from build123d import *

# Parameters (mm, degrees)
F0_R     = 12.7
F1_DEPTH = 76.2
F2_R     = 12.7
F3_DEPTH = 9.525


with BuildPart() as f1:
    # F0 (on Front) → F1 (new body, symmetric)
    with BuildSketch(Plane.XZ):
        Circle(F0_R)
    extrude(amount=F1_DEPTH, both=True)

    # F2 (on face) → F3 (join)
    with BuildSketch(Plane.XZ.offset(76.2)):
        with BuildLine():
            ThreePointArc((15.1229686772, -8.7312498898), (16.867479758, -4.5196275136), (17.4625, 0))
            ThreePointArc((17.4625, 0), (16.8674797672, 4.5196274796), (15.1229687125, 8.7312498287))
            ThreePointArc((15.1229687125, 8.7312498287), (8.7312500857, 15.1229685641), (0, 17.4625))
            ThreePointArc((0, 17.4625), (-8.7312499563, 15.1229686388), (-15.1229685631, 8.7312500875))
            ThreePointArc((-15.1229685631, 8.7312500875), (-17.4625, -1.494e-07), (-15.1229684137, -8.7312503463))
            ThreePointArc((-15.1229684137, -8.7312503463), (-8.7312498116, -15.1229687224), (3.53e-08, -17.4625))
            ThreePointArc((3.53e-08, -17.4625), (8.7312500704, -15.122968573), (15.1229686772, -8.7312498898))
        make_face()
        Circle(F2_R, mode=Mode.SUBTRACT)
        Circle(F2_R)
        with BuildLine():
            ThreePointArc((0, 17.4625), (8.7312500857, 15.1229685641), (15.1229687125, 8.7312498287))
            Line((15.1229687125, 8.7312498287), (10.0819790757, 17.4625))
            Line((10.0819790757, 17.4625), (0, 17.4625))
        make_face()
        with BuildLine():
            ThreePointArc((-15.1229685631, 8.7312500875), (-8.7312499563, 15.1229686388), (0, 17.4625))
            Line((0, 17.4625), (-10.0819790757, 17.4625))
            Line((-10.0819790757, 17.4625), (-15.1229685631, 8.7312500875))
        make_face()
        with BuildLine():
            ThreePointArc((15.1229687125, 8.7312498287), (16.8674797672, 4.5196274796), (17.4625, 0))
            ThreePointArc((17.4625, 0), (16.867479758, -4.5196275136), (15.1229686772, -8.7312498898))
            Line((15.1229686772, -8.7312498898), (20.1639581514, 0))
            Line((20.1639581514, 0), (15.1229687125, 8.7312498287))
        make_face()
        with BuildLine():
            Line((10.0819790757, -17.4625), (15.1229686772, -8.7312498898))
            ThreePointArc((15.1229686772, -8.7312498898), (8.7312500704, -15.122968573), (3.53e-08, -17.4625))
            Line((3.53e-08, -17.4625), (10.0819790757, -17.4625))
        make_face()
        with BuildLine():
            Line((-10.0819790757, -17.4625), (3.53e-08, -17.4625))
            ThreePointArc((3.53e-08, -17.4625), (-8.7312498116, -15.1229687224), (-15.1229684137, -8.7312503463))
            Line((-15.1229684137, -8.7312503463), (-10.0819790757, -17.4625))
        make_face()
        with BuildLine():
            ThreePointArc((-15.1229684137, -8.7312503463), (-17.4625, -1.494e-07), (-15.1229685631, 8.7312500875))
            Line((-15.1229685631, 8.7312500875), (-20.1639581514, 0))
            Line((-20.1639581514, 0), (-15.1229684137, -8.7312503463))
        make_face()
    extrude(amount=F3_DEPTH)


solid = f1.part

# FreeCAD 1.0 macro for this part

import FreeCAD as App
import Part
import Sketcher

V = App.Vector
Q = App.Units.Quantity

doc = App.newDocument("Part")
params = doc.addObject("Spreadsheet::Sheet", "Params")
for row, (alias, value) in enumerate([
    ("sketch1_diameter", "1 in"),
    ("pad1_length", "6 in"),
    ("pad2_length", "0.375 in"),
], start=1):
    params.set(f"A{row}", alias)
    params.set(f"B{row}", "=" + value)
    params.setAlias(f"B{row}", alias)

body = doc.addObject("PartDesign::Body", "Body")

# Sketch on XZ plane
sketch1 = body.newObject("Sketcher::SketchObject", "Sketch")
sketch1.AttachmentSupport = (doc.getObject("XZ_Plane"), [""])
sketch1.MapMode = "FlatFace"
sketch1.addGeometry(Part.Circle(V(0, 0, 0), V(0, 0, 1), 12.7), False)
sketch1.addConstraint([
    Sketcher.Constraint("Coincident", 0, 3, -1, 1),
    Sketcher.Constraint("Diameter", 0, Q("1 in")),
])
sketch1.setExpression("Constraints[1]", "Params.sketch1_diameter")
pad1 = body.newObject("PartDesign::Pad", "Pad")
pad1.Profile = sketch1
pad1.setExpression("Length", "Params.pad1_length")
pad1.Midplane = True

# Sketch on XZ plane
sketch2 = body.newObject("Sketcher::SketchObject", "Sketch001")
sketch2.AttachmentSupport = (doc.getObject("XZ_Plane"), [""])
sketch2.MapMode = "FlatFace"
sketch2.AttachmentOffset = App.Placement(V(0, 0, 3 * 25.4), App.Rotation())
sketch2.addGeometry([
    Part.LineSegment(V(15.122969, 8.73125, 0), V(10.081979, 17.4625, 0)),  # 0
    Part.LineSegment(V(10.081979, 17.4625, 0), V(-10.081979, 17.4625, 0)),  # 1
    Part.LineSegment(V(-10.081979, 17.4625, 0), V(-15.122969, 8.73125, 0)),  # 2
    Part.LineSegment(V(-15.122969, 8.73125, 0), V(-20.163958, 0, 0)),  # 3
    Part.LineSegment(V(-20.163958, 0, 0), V(-15.122968, -8.73125, 0)),  # 4
    Part.LineSegment(V(-15.122968, -8.73125, 0), V(-10.081979, -17.4625, 0)),  # 5
    Part.LineSegment(V(-10.081979, -17.4625, 0), V(10.081979, -17.4625, 0)),  # 6
    Part.LineSegment(V(10.081979, -17.4625, 0), V(15.122969, -8.73125, 0)),  # 7
    Part.LineSegment(V(15.122969, -8.73125, 0), V(20.163958, 0, 0)),  # 8
    Part.LineSegment(V(20.163958, 0, 0), V(15.122969, 8.73125, 0)),  # 9
], False)
sketch2.addConstraint([
    Sketcher.Constraint("Coincident", 0, 2, 1, 1),
    Sketcher.Constraint("Coincident", 1, 2, 2, 1),
    Sketcher.Constraint("Coincident", 2, 2, 3, 1),
    Sketcher.Constraint("Coincident", 3, 2, 4, 1),
    Sketcher.Constraint("Coincident", 4, 2, 5, 1),
    Sketcher.Constraint("Coincident", 5, 2, 6, 1),
    Sketcher.Constraint("Coincident", 6, 2, 7, 1),
    Sketcher.Constraint("Coincident", 7, 2, 8, 1),
    Sketcher.Constraint("Coincident", 8, 2, 9, 1),
    Sketcher.Constraint("Coincident", 9, 2, 0, 1),
    Sketcher.Constraint("Horizontal", 1),
    Sketcher.Constraint("Horizontal", 6),
    Sketcher.Constraint("Symmetric", 0, 2, 5, 2, -1, 1),
    Sketcher.Constraint("Symmetric", 2, 2, 7, 2, -1, 1),
    Sketcher.Constraint("Symmetric", 3, 2, 8, 2, -1, 1),
    Sketcher.Constraint("Symmetric", 4, 2, 9, 2, -1, 1),
    Sketcher.Constraint("Symmetric", 4, 2, 7, 2, -2),
    Sketcher.Constraint("PointOnObject", 3, 2, -1),
    Sketcher.Constraint("Parallel", 2, 3),
    Sketcher.Constraint("Parallel", 0, 4),
    Sketcher.Constraint("Parallel", 3, 7),
    Sketcher.Constraint("Equal", 2, 3),
    Sketcher.Constraint("Angle", 0, Q("120 deg")),
    Sketcher.Constraint("DistanceY", -1, 1, 0, 2, Q("0.6875 in")),
    Sketcher.Constraint("DistanceX", 1, 2, 1, 1, Q("20.163958 mm")),
])
pad2 = body.newObject("PartDesign::Pad", "Pad001")
pad2.Profile = sketch2
pad2.setExpression("Length", "Params.pad2_length")

doc.recompute()
